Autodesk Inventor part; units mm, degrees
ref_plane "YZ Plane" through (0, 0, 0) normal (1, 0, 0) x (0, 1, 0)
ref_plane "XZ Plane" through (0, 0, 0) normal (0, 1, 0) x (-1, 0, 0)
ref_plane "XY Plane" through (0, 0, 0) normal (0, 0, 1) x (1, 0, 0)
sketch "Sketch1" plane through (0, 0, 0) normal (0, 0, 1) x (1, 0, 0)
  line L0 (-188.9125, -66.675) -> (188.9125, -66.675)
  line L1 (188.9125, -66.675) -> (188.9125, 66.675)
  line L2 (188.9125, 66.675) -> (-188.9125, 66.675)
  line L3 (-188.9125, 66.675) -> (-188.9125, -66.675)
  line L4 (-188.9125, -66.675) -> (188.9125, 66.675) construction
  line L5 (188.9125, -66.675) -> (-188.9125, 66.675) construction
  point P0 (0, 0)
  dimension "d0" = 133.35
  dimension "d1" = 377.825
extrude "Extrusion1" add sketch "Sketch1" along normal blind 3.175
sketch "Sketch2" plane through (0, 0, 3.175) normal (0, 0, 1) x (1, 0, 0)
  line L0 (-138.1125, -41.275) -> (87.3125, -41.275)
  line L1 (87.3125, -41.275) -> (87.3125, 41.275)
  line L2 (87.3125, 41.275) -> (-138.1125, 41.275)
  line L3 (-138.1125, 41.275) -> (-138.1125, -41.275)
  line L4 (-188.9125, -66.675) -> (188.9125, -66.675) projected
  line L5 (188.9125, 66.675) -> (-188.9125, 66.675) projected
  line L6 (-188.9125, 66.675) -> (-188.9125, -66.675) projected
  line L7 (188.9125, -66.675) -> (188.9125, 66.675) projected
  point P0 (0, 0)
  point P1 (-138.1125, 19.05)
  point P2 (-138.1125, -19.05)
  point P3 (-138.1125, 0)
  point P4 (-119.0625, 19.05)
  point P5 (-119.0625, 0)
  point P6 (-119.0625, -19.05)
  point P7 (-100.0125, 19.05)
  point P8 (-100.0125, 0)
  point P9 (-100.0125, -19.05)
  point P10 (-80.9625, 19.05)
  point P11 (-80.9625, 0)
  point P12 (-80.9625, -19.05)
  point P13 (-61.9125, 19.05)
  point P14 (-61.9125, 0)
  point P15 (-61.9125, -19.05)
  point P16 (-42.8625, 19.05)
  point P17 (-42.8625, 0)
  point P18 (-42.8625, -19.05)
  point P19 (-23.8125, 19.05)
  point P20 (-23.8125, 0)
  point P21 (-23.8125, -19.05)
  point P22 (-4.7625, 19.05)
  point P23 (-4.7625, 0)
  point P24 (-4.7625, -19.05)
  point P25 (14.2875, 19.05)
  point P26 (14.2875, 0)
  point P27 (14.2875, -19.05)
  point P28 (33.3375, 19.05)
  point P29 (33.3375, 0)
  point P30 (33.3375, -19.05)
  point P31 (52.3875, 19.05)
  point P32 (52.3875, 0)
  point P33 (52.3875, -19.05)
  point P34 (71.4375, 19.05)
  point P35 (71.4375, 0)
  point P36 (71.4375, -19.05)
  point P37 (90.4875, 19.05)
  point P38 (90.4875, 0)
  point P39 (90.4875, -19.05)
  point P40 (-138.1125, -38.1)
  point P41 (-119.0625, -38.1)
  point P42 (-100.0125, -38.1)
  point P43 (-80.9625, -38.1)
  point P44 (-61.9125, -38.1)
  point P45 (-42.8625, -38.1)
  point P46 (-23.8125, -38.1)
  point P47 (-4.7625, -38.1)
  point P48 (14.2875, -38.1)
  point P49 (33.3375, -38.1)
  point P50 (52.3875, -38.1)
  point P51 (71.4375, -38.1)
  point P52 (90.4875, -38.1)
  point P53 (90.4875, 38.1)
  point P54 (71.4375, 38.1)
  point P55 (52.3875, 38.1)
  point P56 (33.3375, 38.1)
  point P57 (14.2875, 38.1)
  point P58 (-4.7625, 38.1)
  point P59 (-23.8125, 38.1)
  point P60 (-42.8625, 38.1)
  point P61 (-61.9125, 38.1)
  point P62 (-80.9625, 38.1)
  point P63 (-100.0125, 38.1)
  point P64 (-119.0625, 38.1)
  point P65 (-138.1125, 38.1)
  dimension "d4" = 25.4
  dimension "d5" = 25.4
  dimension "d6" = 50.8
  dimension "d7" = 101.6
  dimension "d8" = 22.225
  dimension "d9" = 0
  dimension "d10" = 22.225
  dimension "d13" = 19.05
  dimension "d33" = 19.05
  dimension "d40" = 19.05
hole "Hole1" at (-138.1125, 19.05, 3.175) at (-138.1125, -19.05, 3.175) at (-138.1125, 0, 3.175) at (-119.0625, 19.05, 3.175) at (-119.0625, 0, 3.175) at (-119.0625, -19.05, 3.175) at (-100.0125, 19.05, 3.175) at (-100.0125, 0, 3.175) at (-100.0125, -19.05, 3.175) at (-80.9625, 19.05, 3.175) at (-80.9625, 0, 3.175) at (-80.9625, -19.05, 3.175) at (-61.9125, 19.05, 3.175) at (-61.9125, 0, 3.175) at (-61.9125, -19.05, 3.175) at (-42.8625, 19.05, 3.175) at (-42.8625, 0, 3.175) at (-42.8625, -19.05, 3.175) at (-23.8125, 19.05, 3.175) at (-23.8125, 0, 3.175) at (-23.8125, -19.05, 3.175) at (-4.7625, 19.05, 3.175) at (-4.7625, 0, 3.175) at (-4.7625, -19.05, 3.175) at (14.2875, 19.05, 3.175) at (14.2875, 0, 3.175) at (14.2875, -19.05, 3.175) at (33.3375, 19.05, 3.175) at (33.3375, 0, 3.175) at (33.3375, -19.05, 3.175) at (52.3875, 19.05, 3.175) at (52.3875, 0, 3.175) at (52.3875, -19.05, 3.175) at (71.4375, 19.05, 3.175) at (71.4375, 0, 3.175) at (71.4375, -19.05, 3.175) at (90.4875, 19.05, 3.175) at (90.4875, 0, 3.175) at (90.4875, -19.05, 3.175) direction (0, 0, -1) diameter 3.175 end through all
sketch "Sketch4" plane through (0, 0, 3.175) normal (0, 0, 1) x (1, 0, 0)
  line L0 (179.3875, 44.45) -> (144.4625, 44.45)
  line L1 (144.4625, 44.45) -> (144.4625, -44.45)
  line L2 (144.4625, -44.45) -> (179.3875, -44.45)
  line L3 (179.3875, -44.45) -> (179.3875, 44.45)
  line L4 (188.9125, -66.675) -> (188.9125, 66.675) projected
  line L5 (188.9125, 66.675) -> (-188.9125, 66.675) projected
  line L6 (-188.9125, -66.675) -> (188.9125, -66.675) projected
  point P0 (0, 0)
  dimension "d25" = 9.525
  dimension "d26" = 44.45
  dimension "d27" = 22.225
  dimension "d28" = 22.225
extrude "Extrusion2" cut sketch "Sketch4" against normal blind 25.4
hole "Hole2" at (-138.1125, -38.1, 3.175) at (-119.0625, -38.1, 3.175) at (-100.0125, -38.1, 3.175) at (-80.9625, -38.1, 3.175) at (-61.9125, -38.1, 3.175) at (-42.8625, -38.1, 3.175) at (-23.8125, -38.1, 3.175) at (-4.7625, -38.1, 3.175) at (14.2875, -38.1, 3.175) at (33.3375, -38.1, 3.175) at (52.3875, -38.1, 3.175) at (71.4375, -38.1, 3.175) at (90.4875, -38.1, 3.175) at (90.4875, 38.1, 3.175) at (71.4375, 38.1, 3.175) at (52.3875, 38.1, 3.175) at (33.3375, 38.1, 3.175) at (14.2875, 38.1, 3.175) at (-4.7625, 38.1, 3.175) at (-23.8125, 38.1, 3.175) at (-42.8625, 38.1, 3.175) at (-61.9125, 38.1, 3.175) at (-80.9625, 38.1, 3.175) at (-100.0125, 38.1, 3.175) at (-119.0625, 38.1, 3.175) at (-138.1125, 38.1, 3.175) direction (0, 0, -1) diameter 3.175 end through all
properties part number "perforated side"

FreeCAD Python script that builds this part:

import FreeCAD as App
import Part
import Sketcher

V = App.Vector
Q = App.Units.Quantity


def add_polygon(sketch, points):
    """Adds a closed chain of lines whose ends are joined by coincident constraints."""
    first, n = sketch.GeometryCount, len(points)
    for a, b in zip(points, points[1:] + points[:1]):
        sketch.addGeometry(Part.LineSegment(App.Vector(*a, 0), App.Vector(*b, 0)), False)
    for i in range(n):
        sketch.addConstraint(Sketcher.Constraint("Coincident", first + i, 2, first + (i + 1) % n, 1))

doc = App.newDocument("Part")
body = doc.addObject("PartDesign::Body", "Body")

# Sketch on XY plane
sketch1 = doc.addObject("Sketcher::SketchObject", "Sketch")
body.addObject(sketch1)
sketch1.AttachmentSupport = (doc.XY_Plane, [""])
sketch1.MapMode = "FlatFace"
add_polygon(sketch1, [(-188.9125, 66.675), (-188.9125, -66.675), (188.9125, -66.675), (188.9125, 66.675)])  # lines 0-3
sketch1.addConstraint([
    Sketcher.Constraint("Vertical", 0),
    Sketcher.Constraint("Horizontal", 1),
    Sketcher.Constraint("Vertical", 2),
    Sketcher.Constraint("Horizontal", 3),
    Sketcher.Constraint("Symmetric", 0, 2, 2, 2, -1, 1),
    Sketcher.Constraint("DistanceY", 0, 2, 0, 1, Q("5.25 in")),
    Sketcher.Constraint("DistanceX", 1, 1, 1, 2, Q("14.875 in")),
])
pad1 = doc.addObject("PartDesign::Pad", "Pad")
body.addObject(pad1)
pad1.Profile = sketch1
pad1.Length = Q("0.125 in")

# Sketch on XY plane
sketch2 = doc.addObject("Sketcher::SketchObject", "Sketch001")
body.addObject(sketch2)
sketch2.AttachmentSupport = (doc.XY_Plane, [""])
sketch2.MapMode = "FlatFace"
sketch2.AttachmentOffset = App.Placement(V(0, 0, 0.125 * 25.4), App.Rotation())
sketch2.addGeometry([
    Part.Circle(V(-138.1125, 19.05, 0), V(0, 0, 1), 1.5875),  # 0
    Part.Circle(V(-138.1125, -19.05, 0), V(0, 0, 1), 1.5875),  # 1
    Part.Circle(V(-138.1125, 0, 0), V(0, 0, 1), 1.5875),  # 2
    Part.Circle(V(-119.0625, 19.05, 0), V(0, 0, 1), 1.5875),  # 3
    Part.Circle(V(-119.0625, 0, 0), V(0, 0, 1), 1.5875),  # 4
    Part.Circle(V(-119.0625, -19.05, 0), V(0, 0, 1), 1.5875),  # 5
    Part.Circle(V(-100.0125, 19.05, 0), V(0, 0, 1), 1.5875),  # 6
    Part.Circle(V(-100.0125, 0, 0), V(0, 0, 1), 1.5875),  # 7
    Part.Circle(V(-100.0125, -19.05, 0), V(0, 0, 1), 1.5875),  # 8
    Part.Circle(V(-80.9625, 19.05, 0), V(0, 0, 1), 1.5875),  # 9
    Part.Circle(V(-80.9625, 0, 0), V(0, 0, 1), 1.5875),  # 10
    Part.Circle(V(-80.9625, -19.05, 0), V(0, 0, 1), 1.5875),  # 11
    Part.Circle(V(-61.9125, 19.05, 0), V(0, 0, 1), 1.5875),  # 12
    Part.Circle(V(-61.9125, 0, 0), V(0, 0, 1), 1.5875),  # 13
    Part.Circle(V(-61.9125, -19.05, 0), V(0, 0, 1), 1.5875),  # 14
    Part.Circle(V(-42.8625, 19.05, 0), V(0, 0, 1), 1.5875),  # 15
    Part.Circle(V(-42.8625, 0, 0), V(0, 0, 1), 1.5875),  # 16
    Part.Circle(V(-42.8625, -19.05, 0), V(0, 0, 1), 1.5875),  # 17
    Part.Circle(V(-23.8125, 19.05, 0), V(0, 0, 1), 1.5875),  # 18
    Part.Circle(V(-23.8125, 0, 0), V(0, 0, 1), 1.5875),  # 19
    Part.Circle(V(-23.8125, -19.05, 0), V(0, 0, 1), 1.5875),  # 20
    Part.Circle(V(-4.7625, 19.05, 0), V(0, 0, 1), 1.5875),  # 21
    Part.Circle(V(-4.7625, 0, 0), V(0, 0, 1), 1.5875),  # 22
    Part.Circle(V(-4.7625, -19.05, 0), V(0, 0, 1), 1.5875),  # 23
    Part.Circle(V(14.2875, 19.05, 0), V(0, 0, 1), 1.5875),  # 24
    Part.Circle(V(14.2875, 0, 0), V(0, 0, 1), 1.5875),  # 25
    Part.Circle(V(14.2875, -19.05, 0), V(0, 0, 1), 1.5875),  # 26
    Part.Circle(V(33.3375, 19.05, 0), V(0, 0, 1), 1.5875),  # 27
    Part.Circle(V(33.3375, 0, 0), V(0, 0, 1), 1.5875),  # 28
    Part.Circle(V(33.3375, -19.05, 0), V(0, 0, 1), 1.5875),  # 29
    Part.Circle(V(52.3875, 19.05, 0), V(0, 0, 1), 1.5875),  # 30
    Part.Circle(V(52.3875, 0, 0), V(0, 0, 1), 1.5875),  # 31
    Part.Circle(V(52.3875, -19.05, 0), V(0, 0, 1), 1.5875),  # 32
    Part.Circle(V(71.4375, 19.05, 0), V(0, 0, 1), 1.5875),  # 33
    Part.Circle(V(71.4375, 0, 0), V(0, 0, 1), 1.5875),  # 34
    Part.Circle(V(71.4375, -19.05, 0), V(0, 0, 1), 1.5875),  # 35
    Part.Circle(V(90.4875, 19.05, 0), V(0, 0, 1), 1.5875),  # 36
    Part.Circle(V(90.4875, 0, 0), V(0, 0, 1), 1.5875),  # 37
    Part.Circle(V(90.4875, -19.05, 0), V(0, 0, 1), 1.5875),  # 38
], False)
sketch2.addConstraint([
    Sketcher.Constraint("Equal", 0, 1),
    Sketcher.Constraint("Equal", 1, 2),
    Sketcher.Constraint("Equal", 2, 3),
    Sketcher.Constraint("Equal", 3, 4),
    Sketcher.Constraint("Equal", 4, 5),
    Sketcher.Constraint("Equal", 5, 6),
    Sketcher.Constraint("Equal", 6, 7),
    Sketcher.Constraint("Equal", 7, 8),
    Sketcher.Constraint("Equal", 8, 9),
    Sketcher.Constraint("Equal", 9, 10),
    Sketcher.Constraint("Equal", 10, 11),
    Sketcher.Constraint("Equal", 11, 12),
    Sketcher.Constraint("Equal", 12, 13),
    Sketcher.Constraint("Equal", 13, 14),
    Sketcher.Constraint("Equal", 14, 15),
    Sketcher.Constraint("Equal", 15, 16),
    Sketcher.Constraint("Equal", 16, 17),
    Sketcher.Constraint("Equal", 17, 18),
    Sketcher.Constraint("Equal", 18, 19),
    Sketcher.Constraint("Equal", 19, 20),
    Sketcher.Constraint("Equal", 20, 21),
    Sketcher.Constraint("Equal", 21, 22),
    Sketcher.Constraint("Equal", 22, 23),
    Sketcher.Constraint("Equal", 23, 24),
    Sketcher.Constraint("Equal", 24, 25),
    Sketcher.Constraint("Equal", 25, 26),
    Sketcher.Constraint("Equal", 26, 27),
    Sketcher.Constraint("Equal", 27, 28),
    Sketcher.Constraint("Equal", 28, 29),
    Sketcher.Constraint("Equal", 29, 30),
    Sketcher.Constraint("Equal", 30, 31),
    Sketcher.Constraint("Equal", 31, 32),
    Sketcher.Constraint("Equal", 32, 33),
    Sketcher.Constraint("Equal", 33, 34),
    Sketcher.Constraint("Equal", 34, 35),
    Sketcher.Constraint("Equal", 35, 36),
    Sketcher.Constraint("Equal", 36, 37),
    Sketcher.Constraint("Equal", 37, 38),
    Sketcher.Constraint("Symmetric", 0, 3, 1, 3, -1),
    Sketcher.Constraint("Symmetric", 3, 3, 5, 3, -1),
    Sketcher.Constraint("Symmetric", 6, 3, 8, 3, -1),
    Sketcher.Constraint("Symmetric", 9, 3, 11, 3, -1),
    Sketcher.Constraint("Symmetric", 12, 3, 14, 3, -1),
    Sketcher.Constraint("Symmetric", 15, 3, 17, 3, -1),
    Sketcher.Constraint("Symmetric", 18, 3, 20, 3, -1),
    Sketcher.Constraint("Symmetric", 21, 3, 23, 3, -1),
    Sketcher.Constraint("Symmetric", 24, 3, 26, 3, -1),
    Sketcher.Constraint("Symmetric", 27, 3, 29, 3, -1),
    Sketcher.Constraint("Symmetric", 30, 3, 32, 3, -1),
    Sketcher.Constraint("Symmetric", 33, 3, 35, 3, -1),
    Sketcher.Constraint("Symmetric", 36, 3, 38, 3, -1),
    Sketcher.Constraint("PointOnObject", 2, 3, -1),
    Sketcher.Constraint("PointOnObject", 4, 3, -1),
    Sketcher.Constraint("PointOnObject", 7, 3, -1),
    Sketcher.Constraint("PointOnObject", 10, 3, -1),
    Sketcher.Constraint("PointOnObject", 13, 3, -1),
    Sketcher.Constraint("PointOnObject", 16, 3, -1),
    Sketcher.Constraint("PointOnObject", 19, 3, -1),
    Sketcher.Constraint("PointOnObject", 22, 3, -1),
    Sketcher.Constraint("PointOnObject", 25, 3, -1),
    Sketcher.Constraint("PointOnObject", 28, 3, -1),
    Sketcher.Constraint("PointOnObject", 31, 3, -1),
    Sketcher.Constraint("PointOnObject", 34, 3, -1),
    Sketcher.Constraint("PointOnObject", 37, 3, -1),
    Sketcher.Constraint("Horizontal", 0, 3, 3, 3),
    Sketcher.Constraint("Horizontal", 3, 3, 6, 3),
    Sketcher.Constraint("Horizontal", 6, 3, 9, 3),
    Sketcher.Constraint("Horizontal", 9, 3, 12, 3),
    Sketcher.Constraint("Horizontal", 12, 3, 15, 3),
    Sketcher.Constraint("Horizontal", 15, 3, 18, 3),
    Sketcher.Constraint("Horizontal", 18, 3, 21, 3),
    Sketcher.Constraint("Horizontal", 21, 3, 24, 3),
    Sketcher.Constraint("Horizontal", 24, 3, 27, 3),
    Sketcher.Constraint("Horizontal", 27, 3, 30, 3),
    Sketcher.Constraint("Horizontal", 30, 3, 33, 3),
    Sketcher.Constraint("Horizontal", 33, 3, 36, 3),
    Sketcher.Constraint("Vertical", 1, 3, 2, 3),
    Sketcher.Constraint("Vertical", 3, 3, 4, 3),
    Sketcher.Constraint("Vertical", 6, 3, 7, 3),
    Sketcher.Constraint("Vertical", 9, 3, 10, 3),
    Sketcher.Constraint("Vertical", 12, 3, 13, 3),
    Sketcher.Constraint("Vertical", 15, 3, 16, 3),
    Sketcher.Constraint("Vertical", 18, 3, 19, 3),
    Sketcher.Constraint("Vertical", 21, 3, 22, 3),
    Sketcher.Constraint("Vertical", 24, 3, 25, 3),
    Sketcher.Constraint("Vertical", 27, 3, 28, 3),
    Sketcher.Constraint("Vertical", 30, 3, 31, 3),
    Sketcher.Constraint("Vertical", 33, 3, 34, 3),
    Sketcher.Constraint("Vertical", 36, 3, 37, 3),
    Sketcher.Constraint("Diameter", 0, Q("0.125 in")),
    Sketcher.Constraint("DistanceY", 1, 3, 0, 3, Q("1.5 in")),
    Sketcher.Constraint("DistanceX", 0, 3, 6, 3, Q("1.5 in")),
    Sketcher.Constraint("DistanceX", 3, 3, 9, 3, Q("1.5 in")),
    Sketcher.Constraint("DistanceX", 6, 3, 12, 3, Q("1.5 in")),
    Sketcher.Constraint("DistanceX", 9, 3, 15, 3, Q("1.5 in")),
    Sketcher.Constraint("DistanceX", 12, 3, 18, 3, Q("1.5 in")),
    Sketcher.Constraint("DistanceX", 15, 3, 21, 3, Q("1.5 in")),
    Sketcher.Constraint("DistanceX", 18, 3, 24, 3, Q("1.5 in")),
    Sketcher.Constraint("DistanceX", 21, 3, 27, 3, Q("1.5 in")),
    Sketcher.Constraint("DistanceX", 24, 3, 30, 3, Q("1.5 in")),
    Sketcher.Constraint("DistanceX", 27, 3, 33, 3, Q("1.5 in")),
    Sketcher.Constraint("DistanceX", 30, 3, 36, 3, Q("1.5 in")),
    Sketcher.Constraint("DistanceX", 0, 3, 3, 3, Q("0.75 in")),
    Sketcher.Constraint("DistanceX", 0, 3, -1, 1, Q("5.4375 in")),
])
doc.recompute()
hole = doc.addObject("PartDesign::Hole", "Hole")
body.addObject(hole)
hole.Profile = sketch2
hole.ThreadType = "None"
hole.Diameter = Q("0.125 in")
hole.DepthType = "ThroughAll"

# Sketch on XY plane
sketch3 = doc.addObject("Sketcher::SketchObject", "Sketch002")
body.addObject(sketch3)
sketch3.AttachmentSupport = (doc.XY_Plane, [""])
sketch3.MapMode = "FlatFace"
sketch3.AttachmentOffset = App.Placement(V(0, 0, 0.125 * 25.4), App.Rotation())
add_polygon(sketch3, [(179.3875, -44.45), (179.3875, 44.45), (144.4625, 44.45), (144.4625, -44.45)])  # lines 0-3
sketch3.addConstraint([
    Sketcher.Constraint("Vertical", 0),
    Sketcher.Constraint("Horizontal", 1),
    Sketcher.Constraint("Vertical", 2),
    Sketcher.Constraint("Horizontal", 3),
    Sketcher.Constraint("DistanceY", -1, 1, 0, 2, Q("1.75 in")),
    Sketcher.Constraint("DistanceY", 2, 2, -1, 1, Q("1.75 in")),
    Sketcher.Constraint("DistanceX", 1, 2, 1, 1, Q("1.375 in")),
    Sketcher.Constraint("DistanceX", -1, 1, 0, 2, Q("7.0625 in")),
])
pocket1 = doc.addObject("PartDesign::Pocket", "Pocket")
body.addObject(pocket1)
pocket1.Profile = sketch3
pocket1.Length = Q("1 in")

# Sketch on XY plane
sketch4 = doc.addObject("Sketcher::SketchObject", "Sketch003")
body.addObject(sketch4)
sketch4.AttachmentSupport = (doc.XY_Plane, [""])
sketch4.MapMode = "FlatFace"
sketch4.AttachmentOffset = App.Placement(V(0, 0, 0.125 * 25.4), App.Rotation())
sketch4.addGeometry([
    Part.Circle(V(-138.1125, -38.1, 0), V(0, 0, 1), 1.5875),  # 0
    Part.Circle(V(-119.0625, -38.1, 0), V(0, 0, 1), 1.5875),  # 1
    Part.Circle(V(-100.0125, -38.1, 0), V(0, 0, 1), 1.5875),  # 2
    Part.Circle(V(-80.9625, -38.1, 0), V(0, 0, 1), 1.5875),  # 3
    Part.Circle(V(-61.9125, -38.1, 0), V(0, 0, 1), 1.5875),  # 4
    Part.Circle(V(-42.8625, -38.1, 0), V(0, 0, 1), 1.5875),  # 5
    Part.Circle(V(-23.8125, -38.1, 0), V(0, 0, 1), 1.5875),  # 6
    Part.Circle(V(-4.7625, -38.1, 0), V(0, 0, 1), 1.5875),  # 7
    Part.Circle(V(14.2875, -38.1, 0), V(0, 0, 1), 1.5875),  # 8
    Part.Circle(V(33.3375, -38.1, 0), V(0, 0, 1), 1.5875),  # 9
    Part.Circle(V(52.3875, -38.1, 0), V(0, 0, 1), 1.5875),  # 10
    Part.Circle(V(71.4375, -38.1, 0), V(0, 0, 1), 1.5875),  # 11
    Part.Circle(V(90.4875, -38.1, 0), V(0, 0, 1), 1.5875),  # 12
    Part.Circle(V(90.4875, 38.1, 0), V(0, 0, 1), 1.5875),  # 13
    Part.Circle(V(71.4375, 38.1, 0), V(0, 0, 1), 1.5875),  # 14
    Part.Circle(V(52.3875, 38.1, 0), V(0, 0, 1), 1.5875),  # 15
    Part.Circle(V(33.3375, 38.1, 0), V(0, 0, 1), 1.5875),  # 16
    Part.Circle(V(14.2875, 38.1, 0), V(0, 0, 1), 1.5875),  # 17
    Part.Circle(V(-4.7625, 38.1, 0), V(0, 0, 1), 1.5875),  # 18
    Part.Circle(V(-23.8125, 38.1, 0), V(0, 0, 1), 1.5875),  # 19
    Part.Circle(V(-42.8625, 38.1, 0), V(0, 0, 1), 1.5875),  # 20
    Part.Circle(V(-61.9125, 38.1, 0), V(0, 0, 1), 1.5875),  # 21
    Part.Circle(V(-80.9625, 38.1, 0), V(0, 0, 1), 1.5875),  # 22
    Part.Circle(V(-100.0125, 38.1, 0), V(0, 0, 1), 1.5875),  # 23
    Part.Circle(V(-119.0625, 38.1, 0), V(0, 0, 1), 1.5875),  # 24
    Part.Circle(V(-138.1125, 38.1, 0), V(0, 0, 1), 1.5875),  # 25
], False)
sketch4.addConstraint([
    Sketcher.Constraint("Equal", 0, 1),
    Sketcher.Constraint("Equal", 1, 2),
    Sketcher.Constraint("Equal", 2, 3),
    Sketcher.Constraint("Equal", 3, 4),
    Sketcher.Constraint("Equal", 4, 5),
    Sketcher.Constraint("Equal", 5, 6),
    Sketcher.Constraint("Equal", 6, 7),
    Sketcher.Constraint("Equal", 7, 8),
    Sketcher.Constraint("Equal", 8, 9),
    Sketcher.Constraint("Equal", 9, 10),
    Sketcher.Constraint("Equal", 10, 11),
    Sketcher.Constraint("Equal", 11, 12),
    Sketcher.Constraint("Equal", 12, 13),
    Sketcher.Constraint("Equal", 13, 14),
    Sketcher.Constraint("Equal", 14, 15),
    Sketcher.Constraint("Equal", 15, 16),
    Sketcher.Constraint("Equal", 16, 17),
    Sketcher.Constraint("Equal", 17, 18),
    Sketcher.Constraint("Equal", 18, 19),
    Sketcher.Constraint("Equal", 19, 20),
    Sketcher.Constraint("Equal", 20, 21),
    Sketcher.Constraint("Equal", 21, 22),
    Sketcher.Constraint("Equal", 22, 23),
    Sketcher.Constraint("Equal", 23, 24),
    Sketcher.Constraint("Equal", 24, 25),
    Sketcher.Constraint("Symmetric", 12, 3, 13, 3, -1),
    Sketcher.Constraint("Symmetric", 11, 3, 14, 3, -1),
    Sketcher.Constraint("Symmetric", 10, 3, 15, 3, -1),
    Sketcher.Constraint("Symmetric", 9, 3, 16, 3, -1),
    Sketcher.Constraint("Symmetric", 8, 3, 17, 3, -1),
    Sketcher.Constraint("Symmetric", 7, 3, 18, 3, -1),
    Sketcher.Constraint("Symmetric", 6, 3, 19, 3, -1),
    Sketcher.Constraint("Symmetric", 5, 3, 20, 3, -1),
    Sketcher.Constraint("Symmetric", 4, 3, 21, 3, -1),
    Sketcher.Constraint("Symmetric", 3, 3, 22, 3, -1),
    Sketcher.Constraint("Symmetric", 2, 3, 23, 3, -1),
    Sketcher.Constraint("Symmetric", 1, 3, 24, 3, -1),
    Sketcher.Constraint("Symmetric", 0, 3, 25, 3, -1),
    Sketcher.Constraint("Horizontal", 0, 3, 1, 3),
    Sketcher.Constraint("Horizontal", 1, 3, 2, 3),
    Sketcher.Constraint("Horizontal", 2, 3, 3, 3),
    Sketcher.Constraint("Horizontal", 3, 3, 4, 3),
    Sketcher.Constraint("Horizontal", 4, 3, 5, 3),
    Sketcher.Constraint("Horizontal", 5, 3, 6, 3),
    Sketcher.Constraint("Horizontal", 6, 3, 7, 3),
    Sketcher.Constraint("Horizontal", 7, 3, 8, 3),
    Sketcher.Constraint("Horizontal", 8, 3, 9, 3),
    Sketcher.Constraint("Horizontal", 9, 3, 10, 3),
    Sketcher.Constraint("Horizontal", 10, 3, 11, 3),
    Sketcher.Constraint("Horizontal", 11, 3, 12, 3),
    Sketcher.Constraint("Diameter", 0, Q("0.125 in")),
    Sketcher.Constraint("DistanceX", 0, 3, 4, 3, Q("3 in")),
    Sketcher.Constraint("DistanceX", 1, 3, 5, 3, Q("3 in")),
    Sketcher.Constraint("DistanceX", 2, 3, 6, 3, Q("3 in")),
    Sketcher.Constraint("DistanceX", 3, 3, 7, 3, Q("3 in")),
    Sketcher.Constraint("DistanceX", 4, 3, 8, 3, Q("3 in")),
    Sketcher.Constraint("DistanceX", 5, 3, 9, 3, Q("3 in")),
    Sketcher.Constraint("DistanceX", 6, 3, 10, 3, Q("3 in")),
    Sketcher.Constraint("DistanceX", 7, 3, 11, 3, Q("3 in")),
    Sketcher.Constraint("DistanceX", 8, 3, 12, 3, Q("3 in")),
    Sketcher.Constraint("DistanceY", 12, 3, 13, 3, Q("3 in")),
    Sketcher.Constraint("DistanceX", 0, 3, 2, 3, Q("1.5 in")),
    Sketcher.Constraint("DistanceX", 1, 3, 3, 3, Q("1.5 in")),
    Sketcher.Constraint("DistanceX", 0, 3, 1, 3, Q("0.75 in")),
    Sketcher.Constraint("DistanceX", 0, 3, -1, 1, Q("5.4375 in")),
])
doc.recompute()
hole2 = doc.addObject("PartDesign::Hole", "Hole001")
body.addObject(hole2)
hole2.Profile = sketch4
hole2.ThreadType = "None"
hole2.Diameter = Q("0.125 in")
hole2.DepthType = "ThroughAll"

doc.recompute()
